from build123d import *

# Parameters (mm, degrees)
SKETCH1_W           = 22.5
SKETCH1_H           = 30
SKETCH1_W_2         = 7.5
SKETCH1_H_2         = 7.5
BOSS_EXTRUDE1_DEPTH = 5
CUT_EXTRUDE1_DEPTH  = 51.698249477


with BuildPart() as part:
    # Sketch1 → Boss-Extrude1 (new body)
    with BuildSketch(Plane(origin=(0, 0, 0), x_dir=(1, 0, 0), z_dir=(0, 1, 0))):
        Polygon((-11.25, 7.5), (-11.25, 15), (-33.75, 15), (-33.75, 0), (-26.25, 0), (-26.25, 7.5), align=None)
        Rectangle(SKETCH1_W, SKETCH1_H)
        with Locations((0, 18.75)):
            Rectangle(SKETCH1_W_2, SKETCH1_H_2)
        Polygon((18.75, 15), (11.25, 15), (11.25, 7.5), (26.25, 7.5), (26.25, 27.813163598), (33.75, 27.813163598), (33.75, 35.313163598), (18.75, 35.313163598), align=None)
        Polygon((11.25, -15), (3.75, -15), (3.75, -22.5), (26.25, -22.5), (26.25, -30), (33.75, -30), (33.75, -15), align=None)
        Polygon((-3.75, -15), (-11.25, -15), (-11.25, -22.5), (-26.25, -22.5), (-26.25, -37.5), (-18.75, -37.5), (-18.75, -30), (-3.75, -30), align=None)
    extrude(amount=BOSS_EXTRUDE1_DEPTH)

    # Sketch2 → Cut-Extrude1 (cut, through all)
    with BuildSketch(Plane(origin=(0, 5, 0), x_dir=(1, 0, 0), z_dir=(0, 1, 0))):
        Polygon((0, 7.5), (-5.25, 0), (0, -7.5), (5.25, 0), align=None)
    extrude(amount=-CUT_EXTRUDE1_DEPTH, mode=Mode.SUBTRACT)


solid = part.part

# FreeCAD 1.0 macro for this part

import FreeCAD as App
import Part
import Sketcher

V = App.Vector


def add_polygon(sketch, points):
    """Adds a closed chain of lines whose ends are joined by coincident constraints."""
    first, n = sketch.GeometryCount, len(points)
    for a, b in zip(points, points[1:] + points[:1]):
        sketch.addGeometry(Part.LineSegment(App.Vector(*a, 0), App.Vector(*b, 0)), False)
    for i in range(n):
        sketch.addConstraint(Sketcher.Constraint("Coincident", first + i, 2, first + (i + 1) % n, 1))

doc = App.newDocument("Part")
body = doc.addObject("PartDesign::Body", "Body")

# Sketch on XZ plane
sketch1 = doc.addObject("Sketcher::SketchObject", "Sketch")
body.addObject(sketch1)
sketch1.AttachmentSupport = (doc.XZ_Plane, [""])
sketch1.MapMode = "FlatFace"
add_polygon(sketch1, [(-34, -15), (-34, 0), (-26, 0), (-26, -8), (-11, -8), (-11, 22), (-26, 22), (-26, 38), (-19, 38), (-19, 30), (-4, 30), (-4, 15), (4, 15), (4, 22), (26, 22), (26, 30), (34, 30), (34, 15), (11, 15), (11, -8), (26, -8), (26, -28), (34, -28), (34, -35), (19, -35), (19, -15), (4, -15), (4, -22), (-4, -22), (-4, -15)])  # lines 0-29
sketch1.addConstraint(Sketcher.Constraint("Vertical", 0))
sketch1.addConstraint(Sketcher.Constraint("Horizontal", 1))
sketch1.addConstraint(Sketcher.Constraint("Vertical", 2))
sketch1.addConstraint(Sketcher.Constraint("Horizontal", 3))
sketch1.addConstraint(Sketcher.Constraint("Vertical", 4))
sketch1.addConstraint(Sketcher.Constraint("Horizontal", 5))
sketch1.addConstraint(Sketcher.Constraint("Vertical", 6))
sketch1.addConstraint(Sketcher.Constraint("Horizontal", 7))
sketch1.addConstraint(Sketcher.Constraint("Vertical", 8))
sketch1.addConstraint(Sketcher.Constraint("Horizontal", 9))
sketch1.addConstraint(Sketcher.Constraint("Vertical", 10))
sketch1.addConstraint(Sketcher.Constraint("Horizontal", 11))
sketch1.addConstraint(Sketcher.Constraint("Vertical", 12))
sketch1.addConstraint(Sketcher.Constraint("Horizontal", 13))
sketch1.addConstraint(Sketcher.Constraint("Vertical", 14))
sketch1.addConstraint(Sketcher.Constraint("Horizontal", 15))
sketch1.addConstraint(Sketcher.Constraint("Vertical", 16))
sketch1.addConstraint(Sketcher.Constraint("Horizontal", 17))
sketch1.addConstraint(Sketcher.Constraint("Vertical", 18))
sketch1.addConstraint(Sketcher.Constraint("Horizontal", 19))
sketch1.addConstraint(Sketcher.Constraint("Vertical", 20))
sketch1.addConstraint(Sketcher.Constraint("Horizontal", 21))
sketch1.addConstraint(Sketcher.Constraint("Vertical", 22))
sketch1.addConstraint(Sketcher.Constraint("Horizontal", 23))
sketch1.addConstraint(Sketcher.Constraint("Vertical", 24))
sketch1.addConstraint(Sketcher.Constraint("Horizontal", 25))
sketch1.addConstraint(Sketcher.Constraint("Vertical", 26))
sketch1.addConstraint(Sketcher.Constraint("Horizontal", 27))
sketch1.addConstraint(Sketcher.Constraint("Vertical", 28))
sketch1.addConstraint(Sketcher.Constraint("Horizontal", 29))
sketch1.addConstraint(Sketcher.Constraint("Symmetric", 10, 2, 25, 2, -1, 1))
sketch1.addConstraint(Sketcher.Constraint("Symmetric", 12, 2, 27, 2, -1, 1))
sketch1.addConstraint(Sketcher.Constraint("Symmetric", 16, 2, 29, 2, -1, 1))
sketch1.addConstraint(Sketcher.Constraint("Symmetric", 5, 2, 13, 2, -2))
sketch1.addConstraint(Sketcher.Constraint("Symmetric", 3, 2, 18, 2, -2))
sketch1.addConstraint(Sketcher.Constraint("Symmetric", 25, 2, 28, 2, -2))
sketch1.addConstraint(Sketcher.Constraint("PointOnObject", 0, 2, -1))
sketch1.addConstraint(Sketcher.Constraint("Horizontal", 9, 2, 14, 2))
sketch1.addConstraint(Sketcher.Constraint("Vertical", 2, 2, 5, 2))
sketch1.addConstraint(Sketcher.Constraint("Vertical", 14, 2, 19, 2))
sketch1.addConstraint(Sketcher.Constraint("Vertical", 16, 2, 21, 2))
sketch1.addConstraint(Sketcher.Constraint("Equal", 1, 7))
sketch1.addConstraint(Sketcher.Constraint("Equal", 5, 9))
sketch1.addConstraint(Sketcher.Constraint("Equal", 7, 11))
sketch1.addConstraint(Sketcher.Constraint("Equal", 19, 23))
sketch1.addConstraint(Sketcher.Constraint("Equal", 23, 25))
sketch1.addConstraint(Sketcher.Constraint("Equal", 25, 0))
sketch1.addConstraint(Sketcher.Constraint("Equal", 27, 2))
sketch1.addConstraint(Sketcher.Constraint("Equal", 29, 4))
sketch1.addConstraint(Sketcher.Constraint("Equal", 0, 6))
sketch1.addConstraint(Sketcher.Constraint("Equal", 2, 8))
sketch1.addConstraint(Sketcher.Constraint("Equal", 14, 22))
sketch1.addConstraint(Sketcher.Constraint("DistanceX", 3, 1, 3, 2, 15.0))
sketch1.addConstraint(Sketcher.Constraint("DistanceY", 20, 2, 20, 1, 20.313164))
pad1 = doc.addObject("PartDesign::Pad", "Pad")
body.addObject(pad1)
pad1.Profile = sketch1
pad1.Length = 5
pad1.Reversed = True

# Sketch on XZ plane
sketch2 = doc.addObject("Sketcher::SketchObject", "Sketch001")
body.addObject(sketch2)
sketch2.AttachmentSupport = (doc.XZ_Plane, [""])
sketch2.MapMode = "FlatFace"
sketch2.AttachmentOffset = App.Placement(V(0, 0, -5), App.Rotation())
add_polygon(sketch2, [(0, -8), (-5, 0), (0, 8), (5, 0)])  # lines 0-3
sketch2.addConstraint(Sketcher.Constraint("Symmetric", 0, 2, 2, 2, -1, 1))
sketch2.addConstraint(Sketcher.Constraint("Symmetric", 1, 2, 3, 2, -1, 1))
sketch2.addConstraint(Sketcher.Constraint("PointOnObject", 0, 2, -1))
sketch2.addConstraint(Sketcher.Constraint("PointOnObject", 1, 2, -2))
sketch2.addConstraint(Sketcher.Constraint("DistanceY", 3, 2, 1, 2, 15.0))
sketch2.addConstraint(Sketcher.Constraint("DistanceX", 0, 2, 2, 2, 10.5))
pocket1 = doc.addObject("PartDesign::Pocket", "Pocket")
body.addObject(pocket1)
pocket1.Profile = sketch2
pocket1.Type = "ThroughAll"
pocket1.Reversed = True

doc.recompute()
